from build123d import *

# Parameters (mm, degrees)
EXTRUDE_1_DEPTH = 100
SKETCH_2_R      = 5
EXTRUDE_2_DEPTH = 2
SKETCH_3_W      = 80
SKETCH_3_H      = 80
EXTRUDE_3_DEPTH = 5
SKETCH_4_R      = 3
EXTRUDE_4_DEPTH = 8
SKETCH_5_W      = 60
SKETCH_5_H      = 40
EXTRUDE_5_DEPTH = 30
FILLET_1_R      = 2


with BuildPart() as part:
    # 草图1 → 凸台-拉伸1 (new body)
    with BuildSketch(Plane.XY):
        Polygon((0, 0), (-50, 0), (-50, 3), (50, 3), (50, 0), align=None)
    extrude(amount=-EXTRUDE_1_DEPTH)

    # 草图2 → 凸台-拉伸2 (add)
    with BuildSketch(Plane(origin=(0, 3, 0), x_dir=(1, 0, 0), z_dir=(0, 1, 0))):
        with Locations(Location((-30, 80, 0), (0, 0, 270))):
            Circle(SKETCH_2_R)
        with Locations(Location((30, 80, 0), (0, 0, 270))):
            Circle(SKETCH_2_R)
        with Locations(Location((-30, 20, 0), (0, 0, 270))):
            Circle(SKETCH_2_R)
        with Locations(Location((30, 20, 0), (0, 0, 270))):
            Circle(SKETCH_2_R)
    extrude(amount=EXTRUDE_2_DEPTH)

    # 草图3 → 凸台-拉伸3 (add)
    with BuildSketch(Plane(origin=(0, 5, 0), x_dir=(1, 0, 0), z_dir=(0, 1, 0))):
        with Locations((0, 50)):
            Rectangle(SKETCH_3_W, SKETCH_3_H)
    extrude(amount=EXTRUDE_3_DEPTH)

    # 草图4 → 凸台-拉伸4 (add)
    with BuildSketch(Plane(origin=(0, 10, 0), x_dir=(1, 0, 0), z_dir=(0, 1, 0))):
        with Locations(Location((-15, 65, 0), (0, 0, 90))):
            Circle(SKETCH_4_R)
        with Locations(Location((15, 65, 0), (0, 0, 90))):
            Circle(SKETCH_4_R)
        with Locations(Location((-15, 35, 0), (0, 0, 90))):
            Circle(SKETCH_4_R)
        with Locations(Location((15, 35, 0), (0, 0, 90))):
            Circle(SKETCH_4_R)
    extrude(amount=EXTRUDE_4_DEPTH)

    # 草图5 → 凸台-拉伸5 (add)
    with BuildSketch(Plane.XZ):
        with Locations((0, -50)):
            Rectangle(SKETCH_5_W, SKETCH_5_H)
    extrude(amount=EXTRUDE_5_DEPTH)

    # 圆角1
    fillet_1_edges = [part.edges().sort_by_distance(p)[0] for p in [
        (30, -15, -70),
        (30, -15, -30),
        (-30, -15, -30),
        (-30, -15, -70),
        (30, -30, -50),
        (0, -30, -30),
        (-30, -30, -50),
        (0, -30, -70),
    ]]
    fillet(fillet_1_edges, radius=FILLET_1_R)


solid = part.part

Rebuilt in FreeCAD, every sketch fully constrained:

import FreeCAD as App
import Part
import Sketcher
from FreeCAD import Vector


def edges_at(feature, points):
    """Names of the edges that pass closest to the given points."""
    edges = feature.Shape.Edges
    near = lambda p: min(range(len(edges)), key=lambda i: edges[i].distToShape(Part.Vertex(*p))[0])
    return sorted({f"Edge{near(p) + 1}" for p in points})

doc = App.newDocument("Part")
params = doc.addObject("Spreadsheet::Sheet", "Params")
for row, (alias, value) in enumerate([
    ("sketch1_width", "100 mm"),
    ("sketch1_height", "3 mm"),
    ("pad1_length", "100 mm"),
    ("sketch2_diameter", "10 mm"),
    ("pad2_length", "2 mm"),
    ("sketch3_width", "80 mm"),
    ("pad3_length", "5 mm"),
    ("sketch4_diameter", "6 mm"),
    ("pad4_length", "8 mm"),
    ("sketch5_width", "60 mm"),
    ("sketch5_height", "40 mm"),
    ("pad5_length", "30 mm"),
    ("fillet_radius", "2 mm"),
], start=1):
    params.set(f"A{row}", alias)
    params.set(f"B{row}", "=" + value)
    params.setAlias(f"B{row}", alias)

body = doc.addObject("PartDesign::Body", "Body")

sketch1 = doc.addObject("Sketcher::SketchObject", "Sketch")
body.addObject(sketch1)
sketch1.AttachmentSupport = (doc.XY_Plane, [""])
sketch1.MapMode = "FlatFace"
sketch1.addGeometry(Part.LineSegment(Vector(-50, 0, 0), Vector(50, 0, 0)), False)
sketch1.addGeometry(Part.LineSegment(Vector(50, 0, 0), Vector(50, 3, 0)), False)
sketch1.addGeometry(Part.LineSegment(Vector(50, 3, 0), Vector(-50, 3, 0)), False)
sketch1.addGeometry(Part.LineSegment(Vector(-50, 3, 0), Vector(-50, 0, 0)), False)
sketch1.addConstraint(Sketcher.Constraint("Coincident", 0, 2, 1, 1))
sketch1.addConstraint(Sketcher.Constraint("Coincident", 1, 2, 2, 1))
sketch1.addConstraint(Sketcher.Constraint("Coincident", 2, 2, 3, 1))
sketch1.addConstraint(Sketcher.Constraint("Coincident", 3, 2, 0, 1))
sketch1.addConstraint(Sketcher.Constraint("Horizontal", 0))
sketch1.addConstraint(Sketcher.Constraint("Vertical", 1))
sketch1.addConstraint(Sketcher.Constraint("Horizontal", 2))
sketch1.addConstraint(Sketcher.Constraint("Vertical", 3))
sketch1.addConstraint(Sketcher.Constraint("Symmetric", 0, 2, 3, 2, -1, 1))
sketch1.addConstraint(Sketcher.Constraint("DistanceX", 0, 1, 0, 2, 100.0))
sketch1.addConstraint(Sketcher.Constraint("DistanceY", 1, 1, 1, 2, 3.0))
sketch1.setExpression("Constraints[9]", "Params.sketch1_width")
sketch1.setExpression("Constraints[10]", "Params.sketch1_height")
pad1 = doc.addObject("PartDesign::Pad", "Pad")
body.addObject(pad1)
pad1.Profile = sketch1
pad1.setExpression("Length", "Params.pad1_length")
pad1.Reversed = True

sketch2 = doc.addObject("Sketcher::SketchObject", "Sketch001")
body.addObject(sketch2)
sketch2.AttachmentSupport = (doc.XZ_Plane, [""])
sketch2.MapMode = "FlatFace"
sketch2.AttachmentOffset = App.Placement(Vector(0, 0, -3), App.Rotation())
sketch2.addGeometry(Part.Circle(Vector(-30, -80, 0), Vector(0, 0, 1), 5), False)
sketch2.addGeometry(Part.Circle(Vector(30, -80, 0), Vector(0, 0, 1), 5), False)
sketch2.addGeometry(Part.Circle(Vector(-30, -20, 0), Vector(0, 0, 1), 5), False)
sketch2.addGeometry(Part.Circle(Vector(30, -20, 0), Vector(0, 0, 1), 5), False)
sketch2.addConstraint(Sketcher.Constraint("Equal", 0, 1))
sketch2.addConstraint(Sketcher.Constraint("Equal", 1, 2))
sketch2.addConstraint(Sketcher.Constraint("Equal", 2, 3))
sketch2.addConstraint(Sketcher.Constraint("Symmetric", 0, 3, 1, 3, -2))
sketch2.addConstraint(Sketcher.Constraint("Symmetric", 2, 3, 3, 3, -2))
sketch2.addConstraint(Sketcher.Constraint("Vertical", 0, 3, 2, 3))
sketch2.addConstraint(Sketcher.Constraint("Diameter", 0, 10.0))
sketch2.addConstraint(Sketcher.Constraint("DistanceX", 0, 3, -1, 1, 30.0))
sketch2.addConstraint(Sketcher.Constraint("DistanceY", 0, 3, -1, 1, 80.0))
sketch2.addConstraint(Sketcher.Constraint("DistanceY", 2, 3, -1, 1, 20.0))
sketch2.setExpression("Constraints[6]", "Params.sketch2_diameter")
pad2 = doc.addObject("PartDesign::Pad", "Pad001")
body.addObject(pad2)
pad2.Profile = sketch2
pad2.setExpression("Length", "Params.pad2_length")
pad2.Reversed = True

sketch3 = doc.addObject("Sketcher::SketchObject", "Sketch002")
body.addObject(sketch3)
sketch3.AttachmentSupport = (doc.XZ_Plane, [""])
sketch3.MapMode = "FlatFace"
sketch3.AttachmentOffset = App.Placement(Vector(0, 0, -5), App.Rotation())
sketch3.addGeometry(Part.LineSegment(Vector(-40, -90, 0), Vector(-40, -10, 0)), False)
sketch3.addGeometry(Part.LineSegment(Vector(-40, -10, 0), Vector(40, -10, 0)), False)
sketch3.addGeometry(Part.LineSegment(Vector(40, -10, 0), Vector(40, -90, 0)), False)
sketch3.addGeometry(Part.LineSegment(Vector(40, -90, 0), Vector(-40, -90, 0)), False)
sketch3.addConstraint(Sketcher.Constraint("Coincident", 0, 2, 1, 1))
sketch3.addConstraint(Sketcher.Constraint("Coincident", 1, 2, 2, 1))
sketch3.addConstraint(Sketcher.Constraint("Coincident", 2, 2, 3, 1))
sketch3.addConstraint(Sketcher.Constraint("Coincident", 3, 2, 0, 1))
sketch3.addConstraint(Sketcher.Constraint("Vertical", 0))
sketch3.addConstraint(Sketcher.Constraint("Horizontal", 1))
sketch3.addConstraint(Sketcher.Constraint("Vertical", 2))
sketch3.addConstraint(Sketcher.Constraint("Horizontal", 3))
sketch3.addConstraint(Sketcher.Constraint("Equal", 3, 0))
sketch3.addConstraint(Sketcher.Constraint("DistanceX", 1, 1, 1, 2, 80.0))
sketch3.addConstraint(Sketcher.Constraint("DistanceX", 0, 2, -1, 1, 40.0))
sketch3.addConstraint(Sketcher.Constraint("DistanceY", 0, 2, -1, 1, 10.0))
sketch3.setExpression("Constraints[9]", "Params.sketch3_width")
pad3 = doc.addObject("PartDesign::Pad", "Pad002")
body.addObject(pad3)
pad3.Profile = sketch3
pad3.setExpression("Length", "Params.pad3_length")
pad3.Reversed = True

sketch4 = doc.addObject("Sketcher::SketchObject", "Sketch003")
body.addObject(sketch4)
sketch4.AttachmentSupport = (doc.XZ_Plane, [""])
sketch4.MapMode = "FlatFace"
sketch4.AttachmentOffset = App.Placement(Vector(0, 0, -10), App.Rotation())
sketch4.addGeometry(Part.Circle(Vector(-15, -65, 0), Vector(0, 0, 1), 3), False)
sketch4.addGeometry(Part.Circle(Vector(15, -65, 0), Vector(0, 0, 1), 3), False)
sketch4.addGeometry(Part.Circle(Vector(-15, -35, 0), Vector(0, 0, 1), 3), False)
sketch4.addGeometry(Part.Circle(Vector(15, -35, 0), Vector(0, 0, 1), 3), False)
sketch4.addConstraint(Sketcher.Constraint("Equal", 0, 1))
sketch4.addConstraint(Sketcher.Constraint("Equal", 1, 2))
sketch4.addConstraint(Sketcher.Constraint("Equal", 2, 3))
sketch4.addConstraint(Sketcher.Constraint("Symmetric", 0, 3, 1, 3, -2))
sketch4.addConstraint(Sketcher.Constraint("Symmetric", 2, 3, 3, 3, -2))
sketch4.addConstraint(Sketcher.Constraint("Vertical", 0, 3, 2, 3))
sketch4.addConstraint(Sketcher.Constraint("Diameter", 0, 6.0))
sketch4.addConstraint(Sketcher.Constraint("DistanceX", 0, 3, -1, 1, 15.0))
sketch4.addConstraint(Sketcher.Constraint("DistanceY", 0, 3, -1, 1, 65.0))
sketch4.addConstraint(Sketcher.Constraint("DistanceY", 2, 3, -1, 1, 35.0))
sketch4.setExpression("Constraints[6]", "Params.sketch4_diameter")
pad4 = doc.addObject("PartDesign::Pad", "Pad003")
body.addObject(pad4)
pad4.Profile = sketch4
pad4.setExpression("Length", "Params.pad4_length")
pad4.Reversed = True

sketch5 = doc.addObject("Sketcher::SketchObject", "Sketch004")
body.addObject(sketch5)
sketch5.AttachmentSupport = (doc.XZ_Plane, [""])
sketch5.MapMode = "FlatFace"
sketch5.addGeometry(Part.LineSegment(Vector(-30, -30, 0), Vector(-30, -70, 0)), False)
sketch5.addGeometry(Part.LineSegment(Vector(-30, -70, 0), Vector(30, -70, 0)), False)
sketch5.addGeometry(Part.LineSegment(Vector(30, -70, 0), Vector(30, -30, 0)), False)
sketch5.addGeometry(Part.LineSegment(Vector(30, -30, 0), Vector(-30, -30, 0)), False)
sketch5.addConstraint(Sketcher.Constraint("Coincident", 0, 2, 1, 1))
sketch5.addConstraint(Sketcher.Constraint("Coincident", 1, 2, 2, 1))
sketch5.addConstraint(Sketcher.Constraint("Coincident", 2, 2, 3, 1))
sketch5.addConstraint(Sketcher.Constraint("Coincident", 3, 2, 0, 1))
sketch5.addConstraint(Sketcher.Constraint("Vertical", 0))
sketch5.addConstraint(Sketcher.Constraint("Horizontal", 1))
sketch5.addConstraint(Sketcher.Constraint("Vertical", 2))
sketch5.addConstraint(Sketcher.Constraint("Horizontal", 3))
sketch5.addConstraint(Sketcher.Constraint("DistanceX", 1, 1, 1, 2, 60.0))
sketch5.addConstraint(Sketcher.Constraint("DistanceY", 0, 2, 0, 1, 40.0))
sketch5.addConstraint(Sketcher.Constraint("DistanceX", 0, 2, -1, 1, 30.0))
sketch5.addConstraint(Sketcher.Constraint("DistanceY", 0, 2, -1, 1, 70.0))
sketch5.setExpression("Constraints[8]", "Params.sketch5_width")
sketch5.setExpression("Constraints[9]", "Params.sketch5_height")
pad5 = doc.addObject("PartDesign::Pad", "Pad004")
body.addObject(pad5)
pad5.Profile = sketch5
pad5.setExpression("Length", "Params.pad5_length")
doc.recompute()

fillet = doc.addObject("PartDesign::Fillet", "Fillet")
body.addObject(fillet)
fillet.Base = (pad5, edges_at(pad5, [
    (30, -15, -70),
    (30, -15, -30),
    (-30, -15, -30),
    (-30, -15, -70),
    (30, -30, -50),
    (0, -30, -30),
    (-30, -30, -50),
    (0, -30, -70),
]))
fillet.setExpression("Radius", "Params.fillet_radius")

doc.recompute()
